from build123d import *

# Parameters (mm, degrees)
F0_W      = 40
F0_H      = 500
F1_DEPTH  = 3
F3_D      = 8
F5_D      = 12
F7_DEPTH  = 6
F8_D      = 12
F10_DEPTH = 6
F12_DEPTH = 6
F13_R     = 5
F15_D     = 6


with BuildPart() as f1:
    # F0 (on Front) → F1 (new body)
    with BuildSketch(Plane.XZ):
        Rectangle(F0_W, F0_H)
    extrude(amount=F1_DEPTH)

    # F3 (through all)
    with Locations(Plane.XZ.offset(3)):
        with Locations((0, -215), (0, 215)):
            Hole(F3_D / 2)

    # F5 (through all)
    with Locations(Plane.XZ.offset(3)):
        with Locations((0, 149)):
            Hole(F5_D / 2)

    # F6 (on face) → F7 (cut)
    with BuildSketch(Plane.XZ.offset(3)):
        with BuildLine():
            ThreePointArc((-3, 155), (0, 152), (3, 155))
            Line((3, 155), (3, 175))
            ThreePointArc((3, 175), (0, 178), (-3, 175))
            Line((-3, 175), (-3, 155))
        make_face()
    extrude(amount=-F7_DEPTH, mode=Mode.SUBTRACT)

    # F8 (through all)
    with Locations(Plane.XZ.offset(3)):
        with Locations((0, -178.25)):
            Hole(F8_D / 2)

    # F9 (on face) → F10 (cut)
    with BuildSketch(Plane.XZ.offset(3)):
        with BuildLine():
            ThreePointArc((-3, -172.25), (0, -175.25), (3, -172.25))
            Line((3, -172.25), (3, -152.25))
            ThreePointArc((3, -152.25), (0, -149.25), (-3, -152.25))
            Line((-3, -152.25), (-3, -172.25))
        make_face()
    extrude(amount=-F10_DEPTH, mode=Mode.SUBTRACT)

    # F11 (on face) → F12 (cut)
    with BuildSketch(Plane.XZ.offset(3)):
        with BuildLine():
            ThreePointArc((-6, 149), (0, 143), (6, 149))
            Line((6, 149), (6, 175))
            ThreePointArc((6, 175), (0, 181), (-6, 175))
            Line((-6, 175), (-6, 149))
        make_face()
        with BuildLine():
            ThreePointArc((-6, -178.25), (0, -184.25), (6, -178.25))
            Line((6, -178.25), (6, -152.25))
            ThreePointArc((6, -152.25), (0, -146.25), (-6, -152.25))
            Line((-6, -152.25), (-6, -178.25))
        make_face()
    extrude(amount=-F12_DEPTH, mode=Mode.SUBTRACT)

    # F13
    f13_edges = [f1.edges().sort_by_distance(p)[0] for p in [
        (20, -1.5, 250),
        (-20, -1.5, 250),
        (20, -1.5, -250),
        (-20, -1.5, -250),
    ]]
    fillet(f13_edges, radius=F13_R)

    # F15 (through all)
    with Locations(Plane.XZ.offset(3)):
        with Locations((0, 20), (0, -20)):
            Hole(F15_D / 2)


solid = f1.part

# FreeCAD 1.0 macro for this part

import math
import FreeCAD as App
import Part
import Sketcher
from FreeCAD import Vector


def edges_at(feature, points):
    """Names of the edges that pass closest to the given points."""
    edges = feature.Shape.Edges
    near = lambda p: min(range(len(edges)), key=lambda i: edges[i].distToShape(Part.Vertex(*p))[0])
    return sorted({f"Edge{near(p) + 1}" for p in points})


def add_polygon(sketch, points):
    """Adds a closed chain of lines whose ends are joined by coincident constraints."""
    first, n = sketch.GeometryCount, len(points)
    for a, b in zip(points, points[1:] + points[:1]):
        sketch.addGeometry(Part.LineSegment(App.Vector(*a, 0), App.Vector(*b, 0)), False)
    for i in range(n):
        sketch.addConstraint(Sketcher.Constraint("Coincident", first + i, 2, first + (i + 1) % n, 1))

doc = App.newDocument("Part")
body = doc.addObject("PartDesign::Body", "Body")

sketch1 = body.newObject("Sketcher::SketchObject", "Sketch")
sketch1.AttachmentSupport = (doc.getObject("XZ_Plane"), [""])
sketch1.MapMode = "FlatFace"
add_polygon(sketch1, [(-20, 250), (-20, -250), (20, -250), (20, 250)])
sketch1.addConstraint(Sketcher.Constraint("Vertical", 0))
sketch1.addConstraint(Sketcher.Constraint("Horizontal", 1))
sketch1.addConstraint(Sketcher.Constraint("Vertical", 2))
sketch1.addConstraint(Sketcher.Constraint("Horizontal", 3))
sketch1.addConstraint(Sketcher.Constraint("Symmetric", 0, 2, 2, 2, -1, 1))
sketch1.addConstraint(Sketcher.Constraint("DistanceX", 1, 1, 1, 2, 40.0))
sketch1.addConstraint(Sketcher.Constraint("DistanceY", 0, 2, 0, 1, 500.0))
pad1 = body.newObject("PartDesign::Pad", "Pad")
pad1.Profile = sketch1
pad1.Length = 3

sketch2 = body.newObject("Sketcher::SketchObject", "Sketch001")
sketch2.AttachmentSupport = (doc.getObject("XZ_Plane"), [""])
sketch2.MapMode = "FlatFace"
sketch2.AttachmentOffset = App.Placement(Vector(0, 0, 3), App.Rotation())
sketch2.addGeometry(Part.Circle(Vector(0, -215, 0), Vector(0, 0, 1), 4), False)
sketch2.addGeometry(Part.Circle(Vector(0, 215, 0), Vector(0, 0, 1), 4), False)
sketch2.addConstraint(Sketcher.Constraint("Equal", 0, 1))
sketch2.addConstraint(Sketcher.Constraint("Symmetric", 0, 3, 1, 3, -1, 1))
sketch2.addConstraint(Sketcher.Constraint("PointOnObject", 0, 3, -2))
sketch2.addConstraint(Sketcher.Constraint("Diameter", 0, 8.0))
sketch2.addConstraint(Sketcher.Constraint("DistanceY", 0, 3, -1, 1, 215.0))
doc.recompute()
hole = body.newObject("PartDesign::Hole", "Hole")
hole.Profile = sketch2
hole.ThreadType = "None"
hole.Diameter = 8
hole.DepthType = "ThroughAll"

sketch3 = body.newObject("Sketcher::SketchObject", "Sketch002")
sketch3.AttachmentSupport = (doc.getObject("XZ_Plane"), [""])
sketch3.MapMode = "FlatFace"
sketch3.AttachmentOffset = App.Placement(Vector(0, 0, 3), App.Rotation())
sketch3.addGeometry(Part.Circle(Vector(0, 149, 0), Vector(0, 0, 1), 6), False)
sketch3.addConstraint(Sketcher.Constraint("PointOnObject", 0, 3, -2))
sketch3.addConstraint(Sketcher.Constraint("Diameter", 0, 12.0))
sketch3.addConstraint(Sketcher.Constraint("DistanceY", -1, 1, 0, 3, 149.0))
doc.recompute()
hole2 = body.newObject("PartDesign::Hole", "Hole001")
hole2.Profile = sketch3
hole2.ThreadType = "None"
hole2.Diameter = 12
hole2.DepthType = "ThroughAll"

sketch4 = body.newObject("Sketcher::SketchObject", "Sketch003")
sketch4.AttachmentSupport = (doc.getObject("XZ_Plane"), [""])
sketch4.MapMode = "FlatFace"
sketch4.AttachmentOffset = App.Placement(Vector(0, 0, 3), App.Rotation())
sketch4.addGeometry(Part.ArcOfCircle(Part.Circle(Vector(0, 155, 0), Vector(0, 0, 1), 3), math.radians(180), math.radians(360)), False)
sketch4.addGeometry(Part.LineSegment(Vector(3, 155, 0), Vector(3, 175, 0)), False)
sketch4.addGeometry(Part.ArcOfCircle(Part.Circle(Vector(0, 175, 0), Vector(0, 0, 1), 3), math.radians(0), math.radians(180)), False)
sketch4.addGeometry(Part.LineSegment(Vector(-3, 175, 0), Vector(-3, 155, 0)), False)
sketch4.addConstraint(Sketcher.Constraint("Tangent", 0, 2, 1, 1))
sketch4.addConstraint(Sketcher.Constraint("Tangent", 1, 2, 2, 1))
sketch4.addConstraint(Sketcher.Constraint("Tangent", 2, 2, 3, 1))
sketch4.addConstraint(Sketcher.Constraint("Tangent", 3, 2, 0, 1))
sketch4.addConstraint(Sketcher.Constraint("Vertical", 1))
sketch4.addConstraint(Sketcher.Constraint("Vertical", 3))
sketch4.addConstraint(Sketcher.Constraint("PointOnObject", 0, 3, -2))
sketch4.addConstraint(Sketcher.Constraint("Radius", 0, 3.0))
sketch4.addConstraint(Sketcher.Constraint("DistanceY", 1, 1, 1, 2, 20.0))
sketch4.addConstraint(Sketcher.Constraint("DistanceY", -1, 1, 0, 3, 155.0))
pocket1 = body.newObject("PartDesign::Pocket", "Pocket")
pocket1.Profile = sketch4
pocket1.Length = 6

sketch5 = body.newObject("Sketcher::SketchObject", "Sketch004")
sketch5.AttachmentSupport = (doc.getObject("XZ_Plane"), [""])
sketch5.MapMode = "FlatFace"
sketch5.AttachmentOffset = App.Placement(Vector(0, 0, 3), App.Rotation())
sketch5.addGeometry(Part.Circle(Vector(0, -178, 0), Vector(0, 0, 1), 6), False)
sketch5.addConstraint(Sketcher.Constraint("PointOnObject", 0, 3, -2))
sketch5.addConstraint(Sketcher.Constraint("Diameter", 0, 12.0))
sketch5.addConstraint(Sketcher.Constraint("DistanceY", 0, 3, -1, 1, 178.25))
doc.recompute()
hole3 = body.newObject("PartDesign::Hole", "Hole002")
hole3.Profile = sketch5
hole3.ThreadType = "None"
hole3.Diameter = 12
hole3.DepthType = "ThroughAll"

sketch6 = body.newObject("Sketcher::SketchObject", "Sketch005")
sketch6.AttachmentSupport = (doc.getObject("XZ_Plane"), [""])
sketch6.MapMode = "FlatFace"
sketch6.AttachmentOffset = App.Placement(Vector(0, 0, 3), App.Rotation())
sketch6.addGeometry(Part.ArcOfCircle(Part.Circle(Vector(0, -172.2, 0), Vector(0, 0, 1), 3), math.radians(180), math.radians(360)), False)
sketch6.addGeometry(Part.LineSegment(Vector(3, -172.2, 0), Vector(3, -152.2, 0)), False)
sketch6.addGeometry(Part.ArcOfCircle(Part.Circle(Vector(0, -152.2, 0), Vector(0, 0, 1), 3), math.radians(0), math.radians(180)), False)
sketch6.addGeometry(Part.LineSegment(Vector(-3, -152.2, 0), Vector(-3, -172.2, 0)), False)
sketch6.addConstraint(Sketcher.Constraint("Tangent", 0, 2, 1, 1))
sketch6.addConstraint(Sketcher.Constraint("Tangent", 1, 2, 2, 1))
sketch6.addConstraint(Sketcher.Constraint("Tangent", 2, 2, 3, 1))
sketch6.addConstraint(Sketcher.Constraint("Tangent", 3, 2, 0, 1))
sketch6.addConstraint(Sketcher.Constraint("Vertical", 1))
sketch6.addConstraint(Sketcher.Constraint("Vertical", 3))
sketch6.addConstraint(Sketcher.Constraint("PointOnObject", 0, 3, -2))
sketch6.addConstraint(Sketcher.Constraint("Radius", 0, 3.0))
sketch6.addConstraint(Sketcher.Constraint("DistanceY", 1, 1, 1, 2, 20.0))
sketch6.addConstraint(Sketcher.Constraint("DistanceY", 0, 3, -1, 1, 172.25))
pocket2 = body.newObject("PartDesign::Pocket", "Pocket001")
pocket2.Profile = sketch6
pocket2.Length = 6

sketch7 = body.newObject("Sketcher::SketchObject", "Sketch006")
sketch7.AttachmentSupport = (doc.getObject("XZ_Plane"), [""])
sketch7.MapMode = "FlatFace"
sketch7.AttachmentOffset = App.Placement(Vector(0, 0, 3), App.Rotation())
sketch7.addGeometry(Part.ArcOfCircle(Part.Circle(Vector(0, 149, 0), Vector(0, 0, 1), 6), math.radians(180), math.radians(360)), False)
sketch7.addGeometry(Part.LineSegment(Vector(6, 149, 0), Vector(6, 175, 0)), False)
sketch7.addGeometry(Part.ArcOfCircle(Part.Circle(Vector(0, 175, 0), Vector(0, 0, 1), 6), math.radians(0), math.radians(180)), False)
sketch7.addGeometry(Part.LineSegment(Vector(-6, 175, 0), Vector(-6, 149, 0)), False)
sketch7.addGeometry(Part.ArcOfCircle(Part.Circle(Vector(0, -178, 0), Vector(0, 0, 1), 6), math.radians(180), math.radians(360)), False)
sketch7.addGeometry(Part.LineSegment(Vector(6, -178, 0), Vector(6, -152, 0)), False)
sketch7.addGeometry(Part.ArcOfCircle(Part.Circle(Vector(0, -152, 0), Vector(0, 0, 1), 6), math.radians(0), math.radians(180)), False)
sketch7.addGeometry(Part.LineSegment(Vector(-6, -152, 0), Vector(-6, -178, 0)), False)
sketch7.addConstraint(Sketcher.Constraint("Tangent", 0, 2, 1, 1))
sketch7.addConstraint(Sketcher.Constraint("Tangent", 1, 2, 2, 1))
sketch7.addConstraint(Sketcher.Constraint("Tangent", 2, 2, 3, 1))
sketch7.addConstraint(Sketcher.Constraint("Tangent", 3, 2, 0, 1))
sketch7.addConstraint(Sketcher.Constraint("Tangent", 4, 2, 5, 1))
sketch7.addConstraint(Sketcher.Constraint("Tangent", 5, 2, 6, 1))
sketch7.addConstraint(Sketcher.Constraint("Tangent", 6, 2, 7, 1))
sketch7.addConstraint(Sketcher.Constraint("Tangent", 7, 2, 4, 1))
sketch7.addConstraint(Sketcher.Constraint("Vertical", 1))
sketch7.addConstraint(Sketcher.Constraint("Vertical", 3))
sketch7.addConstraint(Sketcher.Constraint("Vertical", 5))
sketch7.addConstraint(Sketcher.Constraint("Vertical", 7))
sketch7.addConstraint(Sketcher.Constraint("Equal", 2, 4))
sketch7.addConstraint(Sketcher.Constraint("PointOnObject", 0, 3, -2))
sketch7.addConstraint(Sketcher.Constraint("PointOnObject", 4, 3, -2))
sketch7.addConstraint(Sketcher.Constraint("Equal", 3, 5))
sketch7.addConstraint(Sketcher.Constraint("Radius", 0, 6.0))
sketch7.addConstraint(Sketcher.Constraint("DistanceY", 1, 1, 1, 2, 26.0))
sketch7.addConstraint(Sketcher.Constraint("DistanceY", -1, 1, 0, 3, 149.0))
sketch7.addConstraint(Sketcher.Constraint("DistanceY", 4, 3, -1, 1, 178.25))
pocket3 = body.newObject("PartDesign::Pocket", "Pocket002")
pocket3.Profile = sketch7
pocket3.Length = 6
doc.recompute()

fillet = body.newObject("PartDesign::Fillet", "Fillet")
fillet.Base = (pocket3, edges_at(pocket3, [
    (20, -1.5, 250),
    (-20, -1.5, 250),
    (20, -1.5, -250),
    (-20, -1.5, -250),
]))
fillet.Radius = 5

sketch8 = body.newObject("Sketcher::SketchObject", "Sketch007")
sketch8.AttachmentSupport = (doc.getObject("XZ_Plane"), [""])
sketch8.MapMode = "FlatFace"
sketch8.AttachmentOffset = App.Placement(Vector(0, 0, 3), App.Rotation())
sketch8.addGeometry(Part.Circle(Vector(0, 20, 0), Vector(0, 0, 1), 3), False)
sketch8.addGeometry(Part.Circle(Vector(0, -20, 0), Vector(0, 0, 1), 3), False)
sketch8.addConstraint(Sketcher.Constraint("Equal", 0, 1))
sketch8.addConstraint(Sketcher.Constraint("Symmetric", 0, 3, 1, 3, -1, 1))
sketch8.addConstraint(Sketcher.Constraint("PointOnObject", 0, 3, -2))
sketch8.addConstraint(Sketcher.Constraint("Diameter", 0, 6.0))
sketch8.addConstraint(Sketcher.Constraint("DistanceY", -1, 1, 0, 3, 20.0))
doc.recompute()
hole4 = body.newObject("PartDesign::Hole", "Hole003")
hole4.Profile = sketch8
hole4.ThreadType = "None"
hole4.Diameter = 6
hole4.DepthType = "ThroughAll"

doc.recompute()
